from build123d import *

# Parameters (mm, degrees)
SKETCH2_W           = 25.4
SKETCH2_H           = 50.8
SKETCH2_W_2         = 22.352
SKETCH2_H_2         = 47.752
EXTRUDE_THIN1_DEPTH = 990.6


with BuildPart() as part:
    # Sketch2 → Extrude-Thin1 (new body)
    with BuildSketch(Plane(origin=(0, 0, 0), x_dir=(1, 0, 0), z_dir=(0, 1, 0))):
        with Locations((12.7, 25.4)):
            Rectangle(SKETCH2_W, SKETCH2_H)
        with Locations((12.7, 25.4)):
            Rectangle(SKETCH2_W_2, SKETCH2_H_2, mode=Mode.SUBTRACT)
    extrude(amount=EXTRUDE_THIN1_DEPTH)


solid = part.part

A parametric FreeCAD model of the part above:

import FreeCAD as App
import Part
import Sketcher
Q = App.Units.Quantity


def add_polygon(sketch, points):
    """Adds a closed chain of lines whose ends are joined by coincident constraints."""
    first, n = sketch.GeometryCount, len(points)
    for a, b in zip(points, points[1:] + points[:1]):
        sketch.addGeometry(Part.LineSegment(App.Vector(*a, 0), App.Vector(*b, 0)), False)
    for i in range(n):
        sketch.addConstraint(Sketcher.Constraint("Coincident", first + i, 2, first + (i + 1) % n, 1))

doc = App.newDocument("Part")
params = doc.addObject("Spreadsheet::Sheet", "Params")
for row, (alias, value) in enumerate([
    ("sketch1_width", "1 in"),
    ("sketch1_height", "2 in"),
    ("sketch1_width2", "0.88 in"),
    ("sketch1_height2", "1.88 in"),
    ("pad1_length", "39 in"),
], start=1):
    params.set(f"A{row}", alias)
    params.set(f"B{row}", "=" + value)
    params.setAlias(f"B{row}", alias)

body = doc.addObject("PartDesign::Body", "Body")

sketch1 = doc.addObject("Sketcher::SketchObject", "Sketch")
body.addObject(sketch1)
sketch1.AttachmentSupport = (doc.XZ_Plane, [""])
sketch1.MapMode = "FlatFace"
add_polygon(sketch1, [(0, -51), (0, 0), (25, 0), (25, -51)])
add_polygon(sketch1, [(24, -2), (2, -2), (2, -49), (24, -49)])
sketch1.addConstraint([
    Sketcher.Constraint("Vertical", 0),
    Sketcher.Constraint("Horizontal", 1),
    Sketcher.Constraint("Vertical", 2),
    Sketcher.Constraint("Horizontal", 3),
    Sketcher.Constraint("Horizontal", 4),
    Sketcher.Constraint("Vertical", 5),
    Sketcher.Constraint("Horizontal", 6),
    Sketcher.Constraint("Vertical", 7),
    Sketcher.Constraint("Coincident", 0, 2, -1, 1),
    Sketcher.Constraint("DistanceX", 1, 1, 1, 2, Q("1 in")),
    Sketcher.Constraint("DistanceY", 0, 1, 0, 2, Q("2 in")),
    Sketcher.Constraint("DistanceX", 4, 2, 4, 1, Q("0.88 in")),
    Sketcher.Constraint("DistanceY", 5, 2, 5, 1, Q("1.88 in")),
    Sketcher.Constraint("DistanceX", -1, 1, 4, 2, Q("0.06 in")),
    Sketcher.Constraint("DistanceY", 4, 2, -1, 1, Q("0.06 in")),
])
sketch1.setExpression("Constraints[17]", "Params.sketch1_width")
sketch1.setExpression("Constraints[18]", "Params.sketch1_height")
sketch1.setExpression("Constraints[19]", "Params.sketch1_width2")
sketch1.setExpression("Constraints[20]", "Params.sketch1_height2")
pad1 = doc.addObject("PartDesign::Pad", "Pad")
body.addObject(pad1)
pad1.Profile = sketch1
pad1.setExpression("Length", "Params.pad1_length")
pad1.Reversed = True

doc.recompute()
